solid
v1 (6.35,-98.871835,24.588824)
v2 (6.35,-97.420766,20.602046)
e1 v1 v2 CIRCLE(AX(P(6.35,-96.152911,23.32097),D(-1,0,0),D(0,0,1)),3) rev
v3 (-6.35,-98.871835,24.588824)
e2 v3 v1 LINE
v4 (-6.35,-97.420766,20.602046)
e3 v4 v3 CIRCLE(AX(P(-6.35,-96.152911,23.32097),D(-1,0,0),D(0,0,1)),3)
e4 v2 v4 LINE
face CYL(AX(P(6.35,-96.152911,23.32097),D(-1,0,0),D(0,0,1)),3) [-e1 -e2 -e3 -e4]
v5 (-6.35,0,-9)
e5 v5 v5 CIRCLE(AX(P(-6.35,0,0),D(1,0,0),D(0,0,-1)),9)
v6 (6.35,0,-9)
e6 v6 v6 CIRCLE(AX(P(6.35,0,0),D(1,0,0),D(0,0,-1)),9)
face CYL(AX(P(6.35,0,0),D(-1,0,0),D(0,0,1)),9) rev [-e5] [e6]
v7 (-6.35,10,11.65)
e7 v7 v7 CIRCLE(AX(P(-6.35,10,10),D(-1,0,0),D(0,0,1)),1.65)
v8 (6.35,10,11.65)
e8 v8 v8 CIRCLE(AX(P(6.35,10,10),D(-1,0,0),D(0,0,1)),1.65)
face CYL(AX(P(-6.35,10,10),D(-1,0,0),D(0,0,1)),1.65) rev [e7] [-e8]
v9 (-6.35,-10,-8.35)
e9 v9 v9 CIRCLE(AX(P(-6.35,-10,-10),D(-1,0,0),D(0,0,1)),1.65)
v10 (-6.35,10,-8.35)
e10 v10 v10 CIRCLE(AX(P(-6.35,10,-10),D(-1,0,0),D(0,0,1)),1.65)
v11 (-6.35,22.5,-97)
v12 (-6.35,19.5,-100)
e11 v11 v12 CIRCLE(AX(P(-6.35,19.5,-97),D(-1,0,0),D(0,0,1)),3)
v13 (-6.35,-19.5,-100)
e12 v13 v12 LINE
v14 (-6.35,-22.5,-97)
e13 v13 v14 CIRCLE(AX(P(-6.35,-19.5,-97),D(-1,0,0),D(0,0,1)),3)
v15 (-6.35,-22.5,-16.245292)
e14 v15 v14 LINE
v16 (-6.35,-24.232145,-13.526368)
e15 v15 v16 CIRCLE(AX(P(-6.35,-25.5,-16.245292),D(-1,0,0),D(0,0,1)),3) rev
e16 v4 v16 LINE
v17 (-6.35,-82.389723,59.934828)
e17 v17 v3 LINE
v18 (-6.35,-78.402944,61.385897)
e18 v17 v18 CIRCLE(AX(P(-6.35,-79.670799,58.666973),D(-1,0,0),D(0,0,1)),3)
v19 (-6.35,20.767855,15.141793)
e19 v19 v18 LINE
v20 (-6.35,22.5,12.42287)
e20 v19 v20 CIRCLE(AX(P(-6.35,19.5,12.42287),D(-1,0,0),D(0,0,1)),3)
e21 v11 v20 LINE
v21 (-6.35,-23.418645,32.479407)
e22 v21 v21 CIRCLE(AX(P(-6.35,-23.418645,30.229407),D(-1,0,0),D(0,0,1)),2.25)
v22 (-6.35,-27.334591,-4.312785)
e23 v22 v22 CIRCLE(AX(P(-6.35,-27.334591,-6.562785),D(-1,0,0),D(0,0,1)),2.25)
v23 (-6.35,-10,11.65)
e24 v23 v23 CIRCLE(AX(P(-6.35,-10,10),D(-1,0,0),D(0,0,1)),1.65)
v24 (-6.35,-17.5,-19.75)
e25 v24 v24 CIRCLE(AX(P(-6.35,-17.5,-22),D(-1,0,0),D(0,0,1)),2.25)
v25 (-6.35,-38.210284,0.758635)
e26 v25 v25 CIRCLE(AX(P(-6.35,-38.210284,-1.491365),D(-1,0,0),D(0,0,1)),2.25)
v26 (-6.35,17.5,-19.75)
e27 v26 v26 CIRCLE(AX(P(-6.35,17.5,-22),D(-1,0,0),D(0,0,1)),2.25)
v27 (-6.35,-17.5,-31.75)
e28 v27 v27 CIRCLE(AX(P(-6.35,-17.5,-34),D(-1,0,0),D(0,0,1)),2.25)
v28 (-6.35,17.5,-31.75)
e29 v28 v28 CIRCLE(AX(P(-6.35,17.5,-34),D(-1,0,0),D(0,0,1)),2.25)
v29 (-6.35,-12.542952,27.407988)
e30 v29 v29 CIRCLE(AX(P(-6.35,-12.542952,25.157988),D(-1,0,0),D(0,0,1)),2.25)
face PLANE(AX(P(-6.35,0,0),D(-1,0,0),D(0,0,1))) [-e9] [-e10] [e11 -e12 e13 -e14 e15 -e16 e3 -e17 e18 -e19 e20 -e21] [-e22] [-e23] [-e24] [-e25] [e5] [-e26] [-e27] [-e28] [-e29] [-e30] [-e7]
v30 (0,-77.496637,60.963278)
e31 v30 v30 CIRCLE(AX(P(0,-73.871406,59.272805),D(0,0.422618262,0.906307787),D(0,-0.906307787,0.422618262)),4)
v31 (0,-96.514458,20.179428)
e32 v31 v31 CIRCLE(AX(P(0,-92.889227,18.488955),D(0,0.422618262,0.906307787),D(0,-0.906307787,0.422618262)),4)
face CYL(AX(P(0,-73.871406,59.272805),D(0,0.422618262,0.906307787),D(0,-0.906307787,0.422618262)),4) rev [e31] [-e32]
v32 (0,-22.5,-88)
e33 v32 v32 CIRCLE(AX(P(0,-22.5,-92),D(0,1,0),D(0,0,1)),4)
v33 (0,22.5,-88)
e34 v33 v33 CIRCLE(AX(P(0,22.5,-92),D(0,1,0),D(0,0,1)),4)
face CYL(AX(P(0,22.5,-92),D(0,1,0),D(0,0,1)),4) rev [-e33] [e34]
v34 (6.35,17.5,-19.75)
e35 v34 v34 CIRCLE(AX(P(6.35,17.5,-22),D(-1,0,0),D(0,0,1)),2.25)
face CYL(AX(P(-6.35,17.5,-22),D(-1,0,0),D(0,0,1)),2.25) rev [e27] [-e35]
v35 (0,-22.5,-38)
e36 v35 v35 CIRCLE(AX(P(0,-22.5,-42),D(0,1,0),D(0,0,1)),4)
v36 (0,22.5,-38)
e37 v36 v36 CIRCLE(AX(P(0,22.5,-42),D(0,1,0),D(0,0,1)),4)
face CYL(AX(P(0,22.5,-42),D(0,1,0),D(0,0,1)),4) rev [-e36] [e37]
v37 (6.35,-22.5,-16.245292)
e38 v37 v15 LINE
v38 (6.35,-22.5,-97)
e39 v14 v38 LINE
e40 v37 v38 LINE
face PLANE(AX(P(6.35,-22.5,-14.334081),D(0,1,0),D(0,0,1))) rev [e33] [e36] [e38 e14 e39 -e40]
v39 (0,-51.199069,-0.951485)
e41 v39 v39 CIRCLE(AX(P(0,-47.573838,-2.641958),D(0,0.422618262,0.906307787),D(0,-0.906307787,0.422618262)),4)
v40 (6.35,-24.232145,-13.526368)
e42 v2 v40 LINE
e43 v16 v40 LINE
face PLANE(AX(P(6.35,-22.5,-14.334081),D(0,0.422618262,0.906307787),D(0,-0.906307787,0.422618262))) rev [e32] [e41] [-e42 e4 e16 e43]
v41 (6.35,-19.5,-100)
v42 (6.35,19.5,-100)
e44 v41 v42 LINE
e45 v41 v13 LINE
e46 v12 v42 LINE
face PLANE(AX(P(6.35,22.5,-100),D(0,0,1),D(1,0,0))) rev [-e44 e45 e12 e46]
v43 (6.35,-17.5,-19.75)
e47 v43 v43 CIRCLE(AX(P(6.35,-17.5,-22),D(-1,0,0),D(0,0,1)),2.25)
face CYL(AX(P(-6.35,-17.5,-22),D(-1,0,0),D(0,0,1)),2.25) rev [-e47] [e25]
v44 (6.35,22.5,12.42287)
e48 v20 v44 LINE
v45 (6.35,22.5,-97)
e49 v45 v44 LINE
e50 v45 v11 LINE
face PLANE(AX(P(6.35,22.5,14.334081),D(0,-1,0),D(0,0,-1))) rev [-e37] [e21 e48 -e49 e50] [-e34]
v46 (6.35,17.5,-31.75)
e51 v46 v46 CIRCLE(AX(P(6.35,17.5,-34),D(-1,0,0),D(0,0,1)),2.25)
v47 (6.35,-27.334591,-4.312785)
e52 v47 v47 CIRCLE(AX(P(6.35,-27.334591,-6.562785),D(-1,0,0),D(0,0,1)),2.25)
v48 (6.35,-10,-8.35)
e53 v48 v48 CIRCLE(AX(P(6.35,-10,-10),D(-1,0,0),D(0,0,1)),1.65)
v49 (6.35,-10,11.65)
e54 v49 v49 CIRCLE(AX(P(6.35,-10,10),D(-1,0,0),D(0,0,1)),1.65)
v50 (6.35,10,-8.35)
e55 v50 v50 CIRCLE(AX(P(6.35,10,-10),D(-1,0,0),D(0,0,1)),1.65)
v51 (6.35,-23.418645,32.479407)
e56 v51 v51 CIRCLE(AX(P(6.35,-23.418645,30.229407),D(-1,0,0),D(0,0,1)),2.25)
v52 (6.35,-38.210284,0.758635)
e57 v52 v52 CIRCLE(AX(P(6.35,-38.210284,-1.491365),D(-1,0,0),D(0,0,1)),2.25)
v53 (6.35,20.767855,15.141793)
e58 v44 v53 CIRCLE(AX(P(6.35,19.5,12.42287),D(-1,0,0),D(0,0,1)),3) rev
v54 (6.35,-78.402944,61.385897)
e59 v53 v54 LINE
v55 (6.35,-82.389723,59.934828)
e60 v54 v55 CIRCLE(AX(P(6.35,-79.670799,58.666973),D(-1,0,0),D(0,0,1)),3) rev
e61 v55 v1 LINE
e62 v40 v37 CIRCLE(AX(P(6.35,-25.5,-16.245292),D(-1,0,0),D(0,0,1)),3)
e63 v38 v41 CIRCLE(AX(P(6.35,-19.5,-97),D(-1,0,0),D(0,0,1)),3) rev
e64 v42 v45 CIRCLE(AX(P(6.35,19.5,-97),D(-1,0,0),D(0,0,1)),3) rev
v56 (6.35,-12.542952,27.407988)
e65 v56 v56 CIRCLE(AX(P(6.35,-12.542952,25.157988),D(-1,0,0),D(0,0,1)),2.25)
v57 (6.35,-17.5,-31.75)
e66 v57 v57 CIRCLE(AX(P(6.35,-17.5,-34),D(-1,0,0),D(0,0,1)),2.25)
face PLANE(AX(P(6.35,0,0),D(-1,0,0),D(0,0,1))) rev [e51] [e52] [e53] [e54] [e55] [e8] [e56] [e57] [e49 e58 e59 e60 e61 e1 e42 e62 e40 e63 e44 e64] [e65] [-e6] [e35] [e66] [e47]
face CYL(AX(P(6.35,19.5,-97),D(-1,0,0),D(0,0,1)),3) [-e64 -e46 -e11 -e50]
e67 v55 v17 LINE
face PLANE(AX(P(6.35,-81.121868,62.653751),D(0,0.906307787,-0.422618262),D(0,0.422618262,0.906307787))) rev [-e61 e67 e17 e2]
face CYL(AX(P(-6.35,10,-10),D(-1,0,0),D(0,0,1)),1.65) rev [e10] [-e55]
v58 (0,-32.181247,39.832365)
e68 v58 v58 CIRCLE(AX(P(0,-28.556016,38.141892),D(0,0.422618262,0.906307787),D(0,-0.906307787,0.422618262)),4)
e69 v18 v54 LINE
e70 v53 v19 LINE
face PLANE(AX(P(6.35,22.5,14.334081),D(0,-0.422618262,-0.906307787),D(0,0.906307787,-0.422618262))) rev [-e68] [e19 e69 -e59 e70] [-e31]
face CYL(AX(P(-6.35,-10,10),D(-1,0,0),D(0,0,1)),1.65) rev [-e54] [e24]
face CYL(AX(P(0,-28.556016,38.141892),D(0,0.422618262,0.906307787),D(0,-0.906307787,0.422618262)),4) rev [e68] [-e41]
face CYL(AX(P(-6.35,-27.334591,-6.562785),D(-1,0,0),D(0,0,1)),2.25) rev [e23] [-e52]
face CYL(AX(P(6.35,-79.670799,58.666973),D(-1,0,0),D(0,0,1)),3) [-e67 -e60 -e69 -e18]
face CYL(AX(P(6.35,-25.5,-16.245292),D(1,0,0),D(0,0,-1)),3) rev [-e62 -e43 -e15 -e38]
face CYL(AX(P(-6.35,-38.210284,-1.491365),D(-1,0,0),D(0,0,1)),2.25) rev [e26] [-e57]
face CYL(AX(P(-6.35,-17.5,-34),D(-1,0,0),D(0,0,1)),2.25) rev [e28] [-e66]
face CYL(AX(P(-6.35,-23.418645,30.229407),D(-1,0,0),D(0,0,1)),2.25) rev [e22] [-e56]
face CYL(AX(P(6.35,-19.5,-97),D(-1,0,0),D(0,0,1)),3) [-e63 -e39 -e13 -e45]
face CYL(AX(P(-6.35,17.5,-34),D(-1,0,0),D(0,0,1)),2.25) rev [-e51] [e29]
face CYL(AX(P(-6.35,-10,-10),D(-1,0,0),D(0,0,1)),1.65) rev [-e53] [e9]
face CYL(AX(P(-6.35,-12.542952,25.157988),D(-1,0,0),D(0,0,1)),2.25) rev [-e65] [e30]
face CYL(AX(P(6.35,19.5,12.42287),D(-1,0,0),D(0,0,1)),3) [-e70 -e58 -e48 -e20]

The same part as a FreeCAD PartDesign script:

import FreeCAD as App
import Part
import Sketcher

V = App.Vector
Q = App.Units.Quantity


def edges_at(feature, points):
    """Names of the edges that pass closest to the given points."""
    edges = feature.Shape.Edges
    near = lambda p: min(range(len(edges)), key=lambda i: edges[i].distToShape(Part.Vertex(*p))[0])
    return sorted({f"Edge{near(p) + 1}" for p in points})


def add_polygon(sketch, points):
    """Adds a closed chain of lines whose ends are joined by coincident constraints."""
    first, n = sketch.GeometryCount, len(points)
    for a, b in zip(points, points[1:] + points[:1]):
        sketch.addGeometry(Part.LineSegment(App.Vector(*a, 0), App.Vector(*b, 0)), False)
    for i in range(n):
        sketch.addConstraint(Sketcher.Constraint("Coincident", first + i, 2, first + (i + 1) % n, 1))

doc = App.newDocument("Part")
params = doc.addObject("Spreadsheet::Sheet", "Params")
for row, (alias, value) in enumerate([
    ("sketch1_diameter", "18 mm"),
    ("sketch1_width", "45 mm"),
    ("sketch1_length", "45 mm"),
    ("pad1_length", "12.7 mm"),
    ("sketch2_diameter", "8 mm"),
    ("hole_diameter", "8 mm"),
    ("sketch3_diameter", "8 mm"),
    ("hole2_diameter", "8 mm"),
    ("fillet_radius", "3 mm"),
    ("sketch4_diameter", "3.3 mm"),
    ("hole3_diameter", "3.3 mm"),
    ("sketch5_diameter", "4.5 mm"),
    ("hole4_diameter", "4.5 mm"),
], start=1):
    params.set(f"A{row}", alias)
    params.set(f"B{row}", "=" + value)
    params.setAlias(f"B{row}", alias)

body = doc.addObject("PartDesign::Body", "Body")

# Sketch on YZ plane
sketch1 = doc.addObject("Sketcher::SketchObject", "Sketch")
body.addObject(sketch1)
sketch1.AttachmentSupport = (doc.YZ_Plane, [""])
sketch1.MapMode = "FlatFace"
add_polygon(sketch1, [(-100.13969, 21.869901), (-22.5, -14.334081), (-22.5, -100), (22.5, -100), (22.5, 14.334081), (-81.121868, 62.653751)])  # lines 0-5
sketch1.addGeometry(Part.Circle(V(0, 0, 0), V(0, 0, 1), 9), False)  # 6
sketch1.addConstraint(Sketcher.Constraint("Vertical", 1))
sketch1.addConstraint(Sketcher.Constraint("Horizontal", 2))
sketch1.addConstraint(Sketcher.Constraint("Vertical", 3))
sketch1.addConstraint(Sketcher.Constraint("Coincident", 6, 3, -1, 1))
sketch1.addConstraint(Sketcher.Constraint("Symmetric", 0, 2, 3, 2, -1, 1))
sketch1.addConstraint(Sketcher.Constraint("Parallel", 0, 4))
sketch1.addConstraint(Sketcher.Constraint("Perpendicular", 4, 5))
sketch1.addConstraint(Sketcher.Constraint("Diameter", 6, 18.0))
sketch1.addConstraint(Sketcher.Constraint("DistanceX", 2, 1, 2, 2, 45.0))
sketch1.addConstraint(Sketcher.Constraint("Angle", 0, Q("-25 deg")))
sketch1.addConstraint(Sketcher.Constraint("Distance", 5, 45.0))
sketch1.addConstraint(Sketcher.Constraint("DistanceY", 1, 2, -1, 1, 100.0))
sketch1.addConstraint(Sketcher.Constraint("DistanceY", -1, 1, 5, 2, 21.869901))
sketch1.setExpression("Constraints[13]", "Params.sketch1_diameter")
sketch1.setExpression("Constraints[14]", "Params.sketch1_width")
sketch1.setExpression("Constraints[16]", "Params.sketch1_length")
pad1 = doc.addObject("PartDesign::Pad", "Pad")
body.addObject(pad1)
pad1.Profile = sketch1
pad1.setExpression("Length", "Params.pad1_length")
pad1.Midplane = True

# Sketch on XZ plane
sketch2 = doc.addObject("Sketcher::SketchObject", "Sketch001")
body.addObject(sketch2)
sketch2.AttachmentSupport = (doc.XZ_Plane, [""])
sketch2.MapMode = "FlatFace"
sketch2.AttachmentOffset = App.Placement(V(0, 0, -22.5), App.Rotation())
sketch2.addGeometry(Part.Circle(V(0, -92, 0), V(0, 0, 1), 4), False)
sketch2.addGeometry(Part.Circle(V(0, -42, 0), V(0, 0, 1), 4), False)
sketch2.addConstraint(Sketcher.Constraint("Equal", 0, 1))
sketch2.addConstraint(Sketcher.Constraint("PointOnObject", 0, 3, -2))
sketch2.addConstraint(Sketcher.Constraint("PointOnObject", 1, 3, -2))
sketch2.addConstraint(Sketcher.Constraint("Diameter", 0, 8.0))
sketch2.addConstraint(Sketcher.Constraint("DistanceY", 0, 3, -1, 1, 92.0))
sketch2.addConstraint(Sketcher.Constraint("DistanceY", 1, 3, -1, 1, 42.0))
sketch2.setExpression("Constraints[3]", "Params.sketch2_diameter")
doc.recompute()
hole = doc.addObject("PartDesign::Hole", "Hole")
body.addObject(hole)
hole.Profile = sketch2
hole.ThreadType = "None"
hole.setExpression("Diameter", "Params.hole_diameter")
hole.DepthType = "ThroughAll"
hole.Reversed = True

# Sketch on an angled plane
sketch3 = doc.addObject("Sketcher::SketchObject", "Sketch002")
body.addObject(sketch3)
sketch3.Placement = App.Placement(V(0, 9.508911, 20.391925), App.Rotation(V(1, 0, 0), V(0, 0.906307787, -0.422618262), V(0, 0.422618262, 0.906307787), "ZXY"))
sketch3.addGeometry(Part.Circle(V(0, -42, 0), V(0, 0, 1), 4), False)
sketch3.addGeometry(Part.Circle(V(0, -92, 0), V(0, 0, 1), 4), False)
sketch3.addConstraint(Sketcher.Constraint("Equal", 0, 1))
sketch3.addConstraint(Sketcher.Constraint("PointOnObject", 0, 3, -2))
sketch3.addConstraint(Sketcher.Constraint("PointOnObject", 1, 3, -2))
sketch3.addConstraint(Sketcher.Constraint("Diameter", 0, 8.0))
sketch3.addConstraint(Sketcher.Constraint("DistanceY", 0, 3, -1, 1, 42.0))
sketch3.addConstraint(Sketcher.Constraint("DistanceY", 1, 3, -1, 1, 92.0))
sketch3.setExpression("Constraints[3]", "Params.sketch3_diameter")
doc.recompute()
hole2 = doc.addObject("PartDesign::Hole", "Hole001")
body.addObject(hole2)
hole2.Profile = sketch3
hole2.ThreadType = "None"
hole2.setExpression("Diameter", "Params.hole2_diameter")
hole2.DepthType = "ThroughAll"
doc.recompute()

fillet = doc.addObject("PartDesign::Fillet", "Fillet")
body.addObject(fillet)
fillet.Base = (hole2, edges_at(hole2, [
    (0, -22.5, -14.334),
    (0, -100.14, 21.87),
    (0, -81.122, 62.654),
    (0, 22.5, 14.334),
    (0, 22.5, -100),
    (0, -22.5, -100),
]))
fillet.setExpression("Radius", "Params.fillet_radius")

# Sketch on YZ plane
sketch4 = doc.addObject("Sketcher::SketchObject", "Sketch003")
body.addObject(sketch4)
sketch4.AttachmentSupport = (doc.YZ_Plane, [""])
sketch4.MapMode = "FlatFace"
sketch4.AttachmentOffset = App.Placement(V(0, 0, -6.35), App.Rotation())
sketch4.addGeometry(Part.Circle(V(10, 10, 0), V(0, 0, 1), 1.65), False)
sketch4.addGeometry(Part.Circle(V(10, -10, 0), V(0, 0, 1), 1.65), False)
sketch4.addGeometry(Part.Circle(V(-10, -10, 0), V(0, 0, 1), 1.65), False)
sketch4.addGeometry(Part.Circle(V(-10, 10, 0), V(0, 0, 1), 1.65), False)
sketch4.addConstraint(Sketcher.Constraint("Equal", 0, 1))
sketch4.addConstraint(Sketcher.Constraint("Equal", 1, 2))
sketch4.addConstraint(Sketcher.Constraint("Equal", 2, 3))
sketch4.addConstraint(Sketcher.Constraint("Symmetric", 0, 3, 2, 3, -1, 1))
sketch4.addConstraint(Sketcher.Constraint("Symmetric", 1, 3, 3, 3, -1, 1))
sketch4.addConstraint(Sketcher.Constraint("Symmetric", 1, 3, 2, 3, -2))
sketch4.addConstraint(Sketcher.Constraint("Diameter", 0, 3.3))
sketch4.addConstraint(Sketcher.Constraint("DistanceX", -1, 1, 0, 3, 10.0))
sketch4.addConstraint(Sketcher.Constraint("DistanceY", -1, 1, 0, 3, 10.0))
sketch4.setExpression("Constraints[6]", "Params.sketch4_diameter")
doc.recompute()
hole3 = doc.addObject("PartDesign::Hole", "Hole002")
body.addObject(hole3)
hole3.Profile = sketch4
hole3.ThreadType = "None"
hole3.setExpression("Diameter", "Params.hole3_diameter")
hole3.DepthType = "ThroughAll"
hole3.Reversed = True

# Sketch on YZ plane
sketch5 = doc.addObject("Sketcher::SketchObject", "Sketch004")
body.addObject(sketch5)
sketch5.AttachmentSupport = (doc.YZ_Plane, [""])
sketch5.MapMode = "FlatFace"
sketch5.AttachmentOffset = App.Placement(V(0, 0, -6.35), App.Rotation())
sketch5.addGeometry(Part.Circle(V(-27.334591, -6.562785, 0), V(0, 0, 1), 2.25), False)
sketch5.addGeometry(Part.Circle(V(-38.210284, -1.491365, 0), V(0, 0, 1), 2.25), False)
sketch5.addGeometry(Part.Circle(V(-12.542952, 25.157988, 0), V(0, 0, 1), 2.25), False)
sketch5.addGeometry(Part.Circle(V(-23.418645, 30.229407, 0), V(0, 0, 1), 2.25), False)
sketch5.addGeometry(Part.Circle(V(17.5, -22, 0), V(0, 0, 1), 2.25), False)
sketch5.addGeometry(Part.Circle(V(-17.5, -22, 0), V(0, 0, 1), 2.25), False)
sketch5.addGeometry(Part.Circle(V(17.5, -34, 0), V(0, 0, 1), 2.25), False)
sketch5.addGeometry(Part.Circle(V(-17.5, -34, 0), V(0, 0, 1), 2.25), False)
sketch5.addConstraint(Sketcher.Constraint("Equal", 0, 1))
sketch5.addConstraint(Sketcher.Constraint("Equal", 1, 2))
sketch5.addConstraint(Sketcher.Constraint("Equal", 2, 3))
sketch5.addConstraint(Sketcher.Constraint("Equal", 3, 4))
sketch5.addConstraint(Sketcher.Constraint("Equal", 4, 5))
sketch5.addConstraint(Sketcher.Constraint("Equal", 5, 6))
sketch5.addConstraint(Sketcher.Constraint("Equal", 6, 7))
sketch5.addConstraint(Sketcher.Constraint("Symmetric", 4, 3, 5, 3, -2))
sketch5.addConstraint(Sketcher.Constraint("Symmetric", 6, 3, 7, 3, -2))
sketch5.addConstraint(Sketcher.Constraint("Vertical", 4, 3, 6, 3))
sketch5.addConstraint(Sketcher.Constraint("Diameter", 0, 4.5))
sketch5.addConstraint(Sketcher.Constraint("DistanceY", 4, 3, -1, 1, 22.0))
sketch5.addConstraint(Sketcher.Constraint("DistanceY", 6, 3, -1, 1, 34.0))
sketch5.addConstraint(Sketcher.Constraint("DistanceX", 5, 3, 4, 3, 35.0))
sketch5.addConstraint(Sketcher.Constraint("DistanceX", 0, 3, -1, 1, 27.334591))
sketch5.addConstraint(Sketcher.Constraint("DistanceX", 2, 3, -1, 1, 12.542952))
sketch5.addConstraint(Sketcher.Constraint("DistanceY", -1, 1, 2, 3, 25.157988))
sketch5.addConstraint(Sketcher.Constraint("DistanceY", 0, 3, 1, 3, 5.071419))
sketch5.addConstraint(Sketcher.Constraint("DistanceY", 2, 3, 3, 3, 5.071419))
sketch5.addConstraint(Sketcher.Constraint("DistanceX", 1, 3, 3, 3, 14.791639))
sketch5.addConstraint(Sketcher.Constraint("DistanceY", 0, 3, 3, 3, 36.792192))
sketch5.addConstraint(Sketcher.Constraint("DistanceX", 1, 3, -1, 1, 38.210284))
sketch5.setExpression("Constraints[10]", "Params.sketch5_diameter")
doc.recompute()
hole4 = doc.addObject("PartDesign::Hole", "Hole003")
body.addObject(hole4)
hole4.Profile = sketch5
hole4.ThreadType = "None"
hole4.setExpression("Diameter", "Params.hole4_diameter")
hole4.DepthType = "ThroughAll"
hole4.Reversed = True

doc.recompute()
